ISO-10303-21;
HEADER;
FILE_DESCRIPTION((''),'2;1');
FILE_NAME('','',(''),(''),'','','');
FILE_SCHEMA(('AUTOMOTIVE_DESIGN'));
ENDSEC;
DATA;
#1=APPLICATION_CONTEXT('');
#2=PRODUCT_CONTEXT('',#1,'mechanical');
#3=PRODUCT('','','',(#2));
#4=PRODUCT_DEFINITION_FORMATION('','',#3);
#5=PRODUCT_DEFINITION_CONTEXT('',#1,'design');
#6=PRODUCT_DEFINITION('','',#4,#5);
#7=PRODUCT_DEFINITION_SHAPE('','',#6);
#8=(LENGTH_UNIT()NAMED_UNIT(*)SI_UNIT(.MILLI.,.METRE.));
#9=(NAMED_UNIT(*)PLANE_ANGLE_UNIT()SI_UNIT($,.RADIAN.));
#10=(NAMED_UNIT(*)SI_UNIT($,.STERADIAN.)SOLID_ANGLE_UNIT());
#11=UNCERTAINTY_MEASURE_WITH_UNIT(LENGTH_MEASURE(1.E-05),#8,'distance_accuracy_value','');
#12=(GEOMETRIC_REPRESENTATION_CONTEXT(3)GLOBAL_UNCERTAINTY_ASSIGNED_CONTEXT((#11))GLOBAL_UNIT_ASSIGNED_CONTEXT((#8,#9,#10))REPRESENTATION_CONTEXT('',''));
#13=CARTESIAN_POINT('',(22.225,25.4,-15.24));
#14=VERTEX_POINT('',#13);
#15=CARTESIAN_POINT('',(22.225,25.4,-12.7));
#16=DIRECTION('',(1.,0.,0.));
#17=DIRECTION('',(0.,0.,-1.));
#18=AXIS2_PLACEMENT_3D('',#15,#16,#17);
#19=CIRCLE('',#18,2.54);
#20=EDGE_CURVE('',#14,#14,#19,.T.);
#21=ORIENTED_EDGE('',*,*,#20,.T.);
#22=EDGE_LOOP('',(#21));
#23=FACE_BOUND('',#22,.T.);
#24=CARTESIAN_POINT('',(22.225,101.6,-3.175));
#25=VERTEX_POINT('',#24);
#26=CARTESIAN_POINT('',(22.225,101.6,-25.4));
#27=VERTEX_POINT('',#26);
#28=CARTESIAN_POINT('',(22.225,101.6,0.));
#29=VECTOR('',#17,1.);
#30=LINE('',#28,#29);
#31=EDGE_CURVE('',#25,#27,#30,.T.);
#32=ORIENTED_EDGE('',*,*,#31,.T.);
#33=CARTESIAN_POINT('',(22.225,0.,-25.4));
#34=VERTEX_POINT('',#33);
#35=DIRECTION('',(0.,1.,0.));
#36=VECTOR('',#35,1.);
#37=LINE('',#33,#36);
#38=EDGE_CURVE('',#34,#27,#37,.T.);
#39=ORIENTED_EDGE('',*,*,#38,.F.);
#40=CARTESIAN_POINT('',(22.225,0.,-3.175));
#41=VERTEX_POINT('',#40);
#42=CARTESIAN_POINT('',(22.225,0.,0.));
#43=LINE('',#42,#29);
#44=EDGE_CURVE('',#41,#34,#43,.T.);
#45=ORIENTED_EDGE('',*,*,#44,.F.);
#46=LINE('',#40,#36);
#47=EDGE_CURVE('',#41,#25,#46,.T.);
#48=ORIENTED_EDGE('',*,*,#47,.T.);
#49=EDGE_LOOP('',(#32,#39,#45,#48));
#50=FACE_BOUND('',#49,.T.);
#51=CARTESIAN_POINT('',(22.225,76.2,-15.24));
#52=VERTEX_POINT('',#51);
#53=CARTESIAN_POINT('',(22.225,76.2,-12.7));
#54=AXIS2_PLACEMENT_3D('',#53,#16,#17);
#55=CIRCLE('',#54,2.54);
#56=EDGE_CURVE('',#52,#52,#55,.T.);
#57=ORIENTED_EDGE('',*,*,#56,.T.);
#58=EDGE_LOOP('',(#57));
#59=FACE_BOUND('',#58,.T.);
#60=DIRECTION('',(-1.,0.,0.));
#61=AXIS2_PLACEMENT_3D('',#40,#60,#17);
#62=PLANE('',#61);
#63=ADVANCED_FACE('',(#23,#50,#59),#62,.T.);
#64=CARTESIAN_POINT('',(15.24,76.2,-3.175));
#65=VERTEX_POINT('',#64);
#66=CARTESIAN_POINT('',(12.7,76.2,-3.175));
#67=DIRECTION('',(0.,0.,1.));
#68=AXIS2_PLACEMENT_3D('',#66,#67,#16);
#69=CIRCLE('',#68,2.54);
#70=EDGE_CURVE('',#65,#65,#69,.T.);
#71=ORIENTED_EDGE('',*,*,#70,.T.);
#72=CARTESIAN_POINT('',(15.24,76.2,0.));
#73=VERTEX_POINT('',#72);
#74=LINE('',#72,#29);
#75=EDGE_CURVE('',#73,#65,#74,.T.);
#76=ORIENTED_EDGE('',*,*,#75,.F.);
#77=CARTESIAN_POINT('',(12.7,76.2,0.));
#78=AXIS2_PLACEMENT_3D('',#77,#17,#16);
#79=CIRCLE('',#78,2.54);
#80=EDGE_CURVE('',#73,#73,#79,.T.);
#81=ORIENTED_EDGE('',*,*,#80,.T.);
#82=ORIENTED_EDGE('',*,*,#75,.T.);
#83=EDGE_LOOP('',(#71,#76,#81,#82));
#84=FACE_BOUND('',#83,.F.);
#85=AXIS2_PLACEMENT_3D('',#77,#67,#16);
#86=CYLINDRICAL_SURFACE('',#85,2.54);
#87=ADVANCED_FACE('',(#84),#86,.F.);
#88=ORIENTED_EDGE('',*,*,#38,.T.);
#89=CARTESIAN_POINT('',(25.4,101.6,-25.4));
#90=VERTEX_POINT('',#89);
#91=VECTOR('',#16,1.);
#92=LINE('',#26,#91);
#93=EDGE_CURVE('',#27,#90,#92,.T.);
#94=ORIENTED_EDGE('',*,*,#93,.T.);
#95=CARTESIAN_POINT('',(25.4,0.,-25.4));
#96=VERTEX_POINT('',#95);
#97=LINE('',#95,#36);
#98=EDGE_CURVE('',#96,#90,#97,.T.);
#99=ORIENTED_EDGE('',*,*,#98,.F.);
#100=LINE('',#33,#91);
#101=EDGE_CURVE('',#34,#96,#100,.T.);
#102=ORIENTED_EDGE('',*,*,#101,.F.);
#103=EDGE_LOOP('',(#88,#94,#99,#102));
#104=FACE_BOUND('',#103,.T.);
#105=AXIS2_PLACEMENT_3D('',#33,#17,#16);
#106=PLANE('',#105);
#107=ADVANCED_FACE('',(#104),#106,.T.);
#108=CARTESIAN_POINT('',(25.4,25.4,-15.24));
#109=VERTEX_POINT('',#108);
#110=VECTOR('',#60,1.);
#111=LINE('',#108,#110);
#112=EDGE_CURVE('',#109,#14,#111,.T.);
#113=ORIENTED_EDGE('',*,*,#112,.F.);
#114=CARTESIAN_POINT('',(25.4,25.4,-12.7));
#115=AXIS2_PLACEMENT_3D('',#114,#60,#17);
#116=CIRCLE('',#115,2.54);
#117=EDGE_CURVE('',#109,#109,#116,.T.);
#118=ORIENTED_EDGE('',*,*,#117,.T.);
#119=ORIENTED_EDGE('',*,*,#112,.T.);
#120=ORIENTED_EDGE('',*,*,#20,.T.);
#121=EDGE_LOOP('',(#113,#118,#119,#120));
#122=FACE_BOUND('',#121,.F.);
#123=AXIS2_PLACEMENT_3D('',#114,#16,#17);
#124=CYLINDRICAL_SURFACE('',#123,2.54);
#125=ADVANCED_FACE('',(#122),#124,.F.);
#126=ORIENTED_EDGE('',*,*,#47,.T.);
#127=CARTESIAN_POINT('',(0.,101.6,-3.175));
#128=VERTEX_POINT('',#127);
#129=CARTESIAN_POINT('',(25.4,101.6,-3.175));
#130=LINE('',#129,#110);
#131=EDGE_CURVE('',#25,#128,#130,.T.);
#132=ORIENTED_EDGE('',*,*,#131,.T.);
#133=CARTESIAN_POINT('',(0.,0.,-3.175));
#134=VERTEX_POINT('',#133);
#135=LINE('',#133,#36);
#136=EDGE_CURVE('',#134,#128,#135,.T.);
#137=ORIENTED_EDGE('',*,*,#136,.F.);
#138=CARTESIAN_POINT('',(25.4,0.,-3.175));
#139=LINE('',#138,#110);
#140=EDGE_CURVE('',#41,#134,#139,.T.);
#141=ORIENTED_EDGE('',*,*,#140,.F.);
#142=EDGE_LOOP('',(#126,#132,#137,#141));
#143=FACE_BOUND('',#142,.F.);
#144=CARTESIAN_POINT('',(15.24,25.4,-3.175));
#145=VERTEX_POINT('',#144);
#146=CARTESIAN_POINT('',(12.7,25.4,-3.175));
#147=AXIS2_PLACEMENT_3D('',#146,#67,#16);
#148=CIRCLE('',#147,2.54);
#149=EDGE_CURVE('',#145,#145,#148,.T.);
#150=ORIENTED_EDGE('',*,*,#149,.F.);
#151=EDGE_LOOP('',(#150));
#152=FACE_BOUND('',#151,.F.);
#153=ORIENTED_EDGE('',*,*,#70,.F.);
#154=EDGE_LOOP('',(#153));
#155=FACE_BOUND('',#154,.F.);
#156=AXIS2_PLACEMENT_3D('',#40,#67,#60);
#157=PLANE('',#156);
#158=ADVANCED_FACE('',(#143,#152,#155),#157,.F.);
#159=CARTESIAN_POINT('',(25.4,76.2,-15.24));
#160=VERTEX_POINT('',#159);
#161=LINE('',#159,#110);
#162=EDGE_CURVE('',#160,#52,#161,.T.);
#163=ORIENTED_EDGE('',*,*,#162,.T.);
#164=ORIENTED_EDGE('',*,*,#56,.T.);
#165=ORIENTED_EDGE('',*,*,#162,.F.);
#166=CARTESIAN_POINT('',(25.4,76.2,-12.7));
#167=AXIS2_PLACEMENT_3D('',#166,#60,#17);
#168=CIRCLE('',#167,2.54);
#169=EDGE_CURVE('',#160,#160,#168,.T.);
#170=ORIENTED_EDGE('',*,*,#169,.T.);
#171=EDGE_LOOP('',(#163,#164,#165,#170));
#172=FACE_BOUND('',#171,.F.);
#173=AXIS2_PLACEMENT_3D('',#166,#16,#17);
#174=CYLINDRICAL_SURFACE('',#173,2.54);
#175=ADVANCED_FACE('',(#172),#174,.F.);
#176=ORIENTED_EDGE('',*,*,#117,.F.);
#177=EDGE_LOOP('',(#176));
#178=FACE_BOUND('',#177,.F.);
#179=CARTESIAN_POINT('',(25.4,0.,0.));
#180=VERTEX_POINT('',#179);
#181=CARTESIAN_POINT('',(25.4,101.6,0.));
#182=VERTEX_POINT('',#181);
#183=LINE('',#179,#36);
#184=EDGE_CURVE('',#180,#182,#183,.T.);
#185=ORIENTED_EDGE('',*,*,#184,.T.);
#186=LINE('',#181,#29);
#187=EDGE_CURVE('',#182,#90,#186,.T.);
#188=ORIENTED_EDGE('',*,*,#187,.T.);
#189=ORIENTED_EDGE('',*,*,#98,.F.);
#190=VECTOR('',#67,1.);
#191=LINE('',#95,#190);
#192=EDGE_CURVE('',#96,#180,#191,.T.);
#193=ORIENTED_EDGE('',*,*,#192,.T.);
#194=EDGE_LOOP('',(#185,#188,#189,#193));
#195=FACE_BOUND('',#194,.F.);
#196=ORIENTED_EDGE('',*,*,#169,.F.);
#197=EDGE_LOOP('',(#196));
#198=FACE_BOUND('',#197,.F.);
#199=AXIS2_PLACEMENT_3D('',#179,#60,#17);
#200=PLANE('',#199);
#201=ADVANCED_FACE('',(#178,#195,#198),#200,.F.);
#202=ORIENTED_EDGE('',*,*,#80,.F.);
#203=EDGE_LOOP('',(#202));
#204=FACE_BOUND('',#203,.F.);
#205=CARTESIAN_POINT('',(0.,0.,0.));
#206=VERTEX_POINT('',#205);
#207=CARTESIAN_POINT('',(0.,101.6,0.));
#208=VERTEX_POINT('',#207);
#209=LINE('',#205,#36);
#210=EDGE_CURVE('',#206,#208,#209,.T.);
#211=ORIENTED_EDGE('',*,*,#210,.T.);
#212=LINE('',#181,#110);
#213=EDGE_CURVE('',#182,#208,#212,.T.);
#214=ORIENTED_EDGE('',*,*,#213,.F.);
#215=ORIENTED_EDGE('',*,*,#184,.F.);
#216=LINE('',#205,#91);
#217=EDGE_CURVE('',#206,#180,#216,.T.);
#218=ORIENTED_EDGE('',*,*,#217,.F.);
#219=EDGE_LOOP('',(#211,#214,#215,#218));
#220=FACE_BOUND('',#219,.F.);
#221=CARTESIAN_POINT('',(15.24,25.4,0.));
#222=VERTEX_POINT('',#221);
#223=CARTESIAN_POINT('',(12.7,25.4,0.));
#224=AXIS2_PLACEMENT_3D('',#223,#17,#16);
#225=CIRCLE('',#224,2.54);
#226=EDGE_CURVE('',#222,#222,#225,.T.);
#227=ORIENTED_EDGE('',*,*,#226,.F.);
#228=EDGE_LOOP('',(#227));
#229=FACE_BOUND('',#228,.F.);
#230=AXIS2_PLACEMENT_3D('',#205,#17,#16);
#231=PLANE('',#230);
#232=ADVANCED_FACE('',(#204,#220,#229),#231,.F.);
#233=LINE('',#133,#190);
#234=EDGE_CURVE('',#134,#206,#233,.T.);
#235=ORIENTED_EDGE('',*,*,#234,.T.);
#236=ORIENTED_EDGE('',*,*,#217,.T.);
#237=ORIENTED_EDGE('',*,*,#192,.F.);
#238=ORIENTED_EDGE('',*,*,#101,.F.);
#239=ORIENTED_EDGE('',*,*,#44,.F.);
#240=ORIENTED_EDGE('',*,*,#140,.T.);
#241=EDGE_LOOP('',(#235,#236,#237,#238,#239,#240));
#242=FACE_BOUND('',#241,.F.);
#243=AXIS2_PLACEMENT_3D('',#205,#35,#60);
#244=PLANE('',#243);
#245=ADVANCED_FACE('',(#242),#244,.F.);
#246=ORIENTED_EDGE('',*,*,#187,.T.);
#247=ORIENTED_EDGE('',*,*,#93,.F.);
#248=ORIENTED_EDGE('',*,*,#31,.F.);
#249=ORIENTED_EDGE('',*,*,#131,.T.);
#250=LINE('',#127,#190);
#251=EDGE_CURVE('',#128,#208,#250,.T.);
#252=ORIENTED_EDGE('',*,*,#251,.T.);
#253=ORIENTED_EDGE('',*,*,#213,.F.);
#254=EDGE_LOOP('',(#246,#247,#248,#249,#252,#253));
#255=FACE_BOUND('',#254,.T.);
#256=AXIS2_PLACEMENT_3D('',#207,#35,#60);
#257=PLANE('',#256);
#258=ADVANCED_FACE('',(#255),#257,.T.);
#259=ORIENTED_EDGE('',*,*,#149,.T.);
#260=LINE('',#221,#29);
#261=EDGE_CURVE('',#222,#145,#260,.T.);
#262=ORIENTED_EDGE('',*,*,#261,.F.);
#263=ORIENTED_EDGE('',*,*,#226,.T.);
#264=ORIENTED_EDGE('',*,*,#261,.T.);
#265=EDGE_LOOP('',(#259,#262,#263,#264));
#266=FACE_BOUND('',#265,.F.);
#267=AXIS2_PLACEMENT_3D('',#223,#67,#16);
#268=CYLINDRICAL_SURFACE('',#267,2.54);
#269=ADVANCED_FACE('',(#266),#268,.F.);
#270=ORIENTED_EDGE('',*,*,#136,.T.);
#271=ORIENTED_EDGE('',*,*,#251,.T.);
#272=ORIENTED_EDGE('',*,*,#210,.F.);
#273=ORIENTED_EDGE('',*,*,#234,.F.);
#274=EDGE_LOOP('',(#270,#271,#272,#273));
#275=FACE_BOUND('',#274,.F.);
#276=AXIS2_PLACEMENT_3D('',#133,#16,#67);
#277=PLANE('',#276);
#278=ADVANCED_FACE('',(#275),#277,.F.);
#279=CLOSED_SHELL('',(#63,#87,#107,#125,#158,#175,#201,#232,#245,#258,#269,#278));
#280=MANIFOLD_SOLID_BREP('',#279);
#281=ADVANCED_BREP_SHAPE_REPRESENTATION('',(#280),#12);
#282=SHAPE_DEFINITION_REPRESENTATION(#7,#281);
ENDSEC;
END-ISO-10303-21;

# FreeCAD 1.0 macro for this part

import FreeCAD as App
import Part
import Sketcher
Q = App.Units.Quantity

doc = App.newDocument("Part")
body = doc.addObject("PartDesign::Body", "Body")

# Sketch on XZ plane
sketch1 = body.newObject("Sketcher::SketchObject", "Sketch")
sketch1.AttachmentSupport = (doc.getObject("XZ_Plane"), [""])
sketch1.MapMode = "FlatFace"
sketch1.addGeometry([
    Part.LineSegment(App.Vector(0, -3.2, 0), App.Vector(0, 0, 0)),  # 0
    Part.LineSegment(App.Vector(0, 0, 0), App.Vector(25.4, 0, 0)),  # 1
    Part.LineSegment(App.Vector(25.4, 0, 0), App.Vector(25.4, -25.4, 0)),  # 2
    Part.LineSegment(App.Vector(25.4, -25.4, 0), App.Vector(22.2, -25.4, 0)),  # 3
    Part.LineSegment(App.Vector(22.2, -25.4, 0), App.Vector(22.2, -3.2, 0)),  # 4
    Part.LineSegment(App.Vector(22.2, -3.2, 0), App.Vector(0, -3.2, 0)),  # 5
], False)
sketch1.addConstraint([
    Sketcher.Constraint("Coincident", 0, 2, 1, 1),
    Sketcher.Constraint("Coincident", 1, 2, 2, 1),
    Sketcher.Constraint("Coincident", 2, 2, 3, 1),
    Sketcher.Constraint("Coincident", 3, 2, 4, 1),
    Sketcher.Constraint("Coincident", 4, 2, 5, 1),
    Sketcher.Constraint("Coincident", 5, 2, 0, 1),
    Sketcher.Constraint("Vertical", 0),
    Sketcher.Constraint("Horizontal", 1),
    Sketcher.Constraint("Vertical", 2),
    Sketcher.Constraint("Horizontal", 3),
    Sketcher.Constraint("Vertical", 4),
    Sketcher.Constraint("Horizontal", 5),
    Sketcher.Constraint("Coincident", 0, 2, -1, 1),
    Sketcher.Constraint("Equal", 3, 0),
    Sketcher.Constraint("Equal", 1, 2),
    Sketcher.Constraint("DistanceX", 1, 1, 1, 2, Q("1 in")),
    Sketcher.Constraint("DistanceX", 3, 2, 3, 1, Q("0.125 in")),
])
pad1 = body.newObject("PartDesign::Pad", "Pad")
pad1.Profile = sketch1
pad1.Length = Q("4 in")
pad1.Reversed = True

# Sketch on YZ plane
sketch2 = body.newObject("Sketcher::SketchObject", "Sketch001")
sketch2.AttachmentSupport = (doc.getObject("YZ_Plane"), [""])
sketch2.MapMode = "FlatFace"
sketch2.AttachmentOffset = App.Placement(App.Vector(0, 0, 1 * 25.4), App.Rotation())
sketch2.addGeometry([
    Part.Circle(App.Vector(76.2, -12.7, 0), App.Vector(0, 0, 1), 2.5),
    Part.Circle(App.Vector(25.4, -12.7, 0), App.Vector(0, 0, 1), 2.5),
], False)
sketch2.addConstraint([
    Sketcher.Constraint("Equal", 0, 1),
    Sketcher.Constraint("Horizontal", 0, 3, 1, 3),
    Sketcher.Constraint("Diameter", 0, Q("0.2 in")),
    Sketcher.Constraint("DistanceX", -1, 1, 1, 3, Q("1 in")),
    Sketcher.Constraint("DistanceY", 0, 3, -1, 1, Q("0.5 in")),
    Sketcher.Constraint("DistanceX", -1, 1, 0, 3, Q("3 in")),
])
pocket1 = body.newObject("PartDesign::Pocket", "Pocket")
pocket1.Profile = sketch2
pocket1.Length = Q("1 in")

# Sketch on XY plane
sketch3 = body.newObject("Sketcher::SketchObject", "Sketch002")
sketch3.AttachmentSupport = (doc.getObject("XY_Plane"), [""])
sketch3.MapMode = "FlatFace"
sketch3.addGeometry([
    Part.Circle(App.Vector(12.7, 76.2, 0), App.Vector(0, 0, 1), 2.5),
    Part.Circle(App.Vector(12.7, 25.4, 0), App.Vector(0, 0, 1), 2.5),
], False)
sketch3.addConstraint([
    Sketcher.Constraint("Equal", 0, 1),
    Sketcher.Constraint("Vertical", 0, 3, 1, 3),
    Sketcher.Constraint("Diameter", 0, Q("0.2 in")),
    Sketcher.Constraint("DistanceY", -1, 1, 1, 3, Q("1 in")),
    Sketcher.Constraint("DistanceY", -1, 1, 0, 3, Q("3 in")),
    Sketcher.Constraint("DistanceX", -1, 1, 0, 3, Q("0.5 in")),
])
pocket2 = body.newObject("PartDesign::Pocket", "Pocket001")
pocket2.Profile = sketch3
pocket2.Length = Q("1 in")

doc.recompute()
